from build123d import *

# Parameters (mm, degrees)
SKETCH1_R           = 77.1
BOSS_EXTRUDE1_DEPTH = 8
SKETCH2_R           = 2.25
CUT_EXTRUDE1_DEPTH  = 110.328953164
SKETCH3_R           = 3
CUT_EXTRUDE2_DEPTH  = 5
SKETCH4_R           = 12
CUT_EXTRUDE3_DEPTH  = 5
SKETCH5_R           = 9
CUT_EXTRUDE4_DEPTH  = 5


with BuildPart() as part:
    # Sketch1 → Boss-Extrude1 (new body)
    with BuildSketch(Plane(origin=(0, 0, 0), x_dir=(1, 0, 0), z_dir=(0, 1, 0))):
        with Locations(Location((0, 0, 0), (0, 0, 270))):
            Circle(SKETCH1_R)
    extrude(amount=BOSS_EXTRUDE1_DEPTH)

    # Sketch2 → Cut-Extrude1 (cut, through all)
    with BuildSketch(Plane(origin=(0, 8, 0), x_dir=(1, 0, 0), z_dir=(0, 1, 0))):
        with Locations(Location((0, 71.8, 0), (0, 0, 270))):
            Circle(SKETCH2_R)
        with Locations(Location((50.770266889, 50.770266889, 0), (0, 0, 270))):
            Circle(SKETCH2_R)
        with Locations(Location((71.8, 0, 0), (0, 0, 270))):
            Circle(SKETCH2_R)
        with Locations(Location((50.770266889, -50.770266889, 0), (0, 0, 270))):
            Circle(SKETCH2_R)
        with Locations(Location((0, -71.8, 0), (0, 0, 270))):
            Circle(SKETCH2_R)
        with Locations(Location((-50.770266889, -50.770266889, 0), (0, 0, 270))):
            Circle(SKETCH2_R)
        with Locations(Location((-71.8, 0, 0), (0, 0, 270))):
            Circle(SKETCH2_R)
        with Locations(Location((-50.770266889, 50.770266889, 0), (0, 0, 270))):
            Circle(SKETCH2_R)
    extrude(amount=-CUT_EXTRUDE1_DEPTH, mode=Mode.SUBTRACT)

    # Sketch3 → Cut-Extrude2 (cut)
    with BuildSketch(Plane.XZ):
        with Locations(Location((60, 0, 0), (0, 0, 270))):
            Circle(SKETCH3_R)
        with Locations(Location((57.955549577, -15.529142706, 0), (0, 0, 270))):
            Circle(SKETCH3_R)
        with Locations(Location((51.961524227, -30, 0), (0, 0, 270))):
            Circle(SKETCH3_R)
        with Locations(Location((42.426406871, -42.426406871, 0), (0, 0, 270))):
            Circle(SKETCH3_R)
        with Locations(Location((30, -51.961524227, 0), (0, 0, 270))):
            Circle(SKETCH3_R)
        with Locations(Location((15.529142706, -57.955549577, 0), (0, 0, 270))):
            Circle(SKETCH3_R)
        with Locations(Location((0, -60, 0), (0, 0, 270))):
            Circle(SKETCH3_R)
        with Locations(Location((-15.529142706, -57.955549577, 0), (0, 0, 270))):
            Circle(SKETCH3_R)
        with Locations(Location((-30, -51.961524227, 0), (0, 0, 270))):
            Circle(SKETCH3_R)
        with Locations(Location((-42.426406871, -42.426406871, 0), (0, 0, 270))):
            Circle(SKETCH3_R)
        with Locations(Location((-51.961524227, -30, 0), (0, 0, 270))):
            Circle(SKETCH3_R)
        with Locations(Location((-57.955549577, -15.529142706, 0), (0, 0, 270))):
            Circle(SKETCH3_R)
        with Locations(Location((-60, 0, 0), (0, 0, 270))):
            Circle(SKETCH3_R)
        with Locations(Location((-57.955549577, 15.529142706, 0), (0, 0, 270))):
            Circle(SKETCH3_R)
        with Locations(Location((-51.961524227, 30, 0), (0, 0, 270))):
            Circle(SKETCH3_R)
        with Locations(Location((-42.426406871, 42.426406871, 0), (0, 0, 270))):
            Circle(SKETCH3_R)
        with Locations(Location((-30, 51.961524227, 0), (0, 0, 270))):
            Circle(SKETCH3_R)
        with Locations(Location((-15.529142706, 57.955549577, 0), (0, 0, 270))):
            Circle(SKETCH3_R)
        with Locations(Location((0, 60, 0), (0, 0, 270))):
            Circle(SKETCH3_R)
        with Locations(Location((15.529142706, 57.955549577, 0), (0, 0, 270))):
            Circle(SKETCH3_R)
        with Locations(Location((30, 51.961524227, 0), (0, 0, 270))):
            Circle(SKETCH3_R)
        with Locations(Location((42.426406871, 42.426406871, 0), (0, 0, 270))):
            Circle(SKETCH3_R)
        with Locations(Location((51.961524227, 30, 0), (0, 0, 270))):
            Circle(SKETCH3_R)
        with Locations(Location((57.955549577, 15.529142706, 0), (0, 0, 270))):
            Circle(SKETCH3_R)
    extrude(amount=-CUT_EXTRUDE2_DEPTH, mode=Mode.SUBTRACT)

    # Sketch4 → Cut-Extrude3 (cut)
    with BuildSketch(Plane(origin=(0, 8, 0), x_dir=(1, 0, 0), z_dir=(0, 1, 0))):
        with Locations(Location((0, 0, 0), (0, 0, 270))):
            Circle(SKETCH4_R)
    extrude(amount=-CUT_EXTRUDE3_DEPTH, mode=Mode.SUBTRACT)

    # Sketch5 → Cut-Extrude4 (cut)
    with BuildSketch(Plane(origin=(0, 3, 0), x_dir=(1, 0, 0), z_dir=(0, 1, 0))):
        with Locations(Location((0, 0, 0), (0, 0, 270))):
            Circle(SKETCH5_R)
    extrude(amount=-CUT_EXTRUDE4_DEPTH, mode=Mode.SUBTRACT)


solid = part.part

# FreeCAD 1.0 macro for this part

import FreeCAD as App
import Part
import Sketcher
Q = App.Units.Quantity

doc = App.newDocument("Part")
body = doc.addObject("PartDesign::Body", "Body")

sketch1 = body.newObject("Sketcher::SketchObject", "Sketch")
sketch1.AttachmentSupport = (doc.getObject("XZ_Plane"), [""])
sketch1.MapMode = "FlatFace"
sketch1.addGeometry(Part.Circle(App.Vector(0, 0, 0), App.Vector(0, 0, 1), 77), False)
sketch1.addConstraint([
    Sketcher.Constraint("Coincident", 0, 3, -1, 1),
    Sketcher.Constraint("Diameter", 0, Q("154.2 mm")),
])
pad1 = body.newObject("PartDesign::Pad", "Pad")
pad1.Profile = sketch1
pad1.Length = 8
pad1.Reversed = True

sketch2 = body.newObject("Sketcher::SketchObject", "Sketch001")
sketch2.AttachmentSupport = (doc.getObject("XZ_Plane"), [""])
sketch2.MapMode = "FlatFace"
sketch2.AttachmentOffset = App.Placement(App.Vector(0, 0, -8), App.Rotation())
sketch2.addGeometry([
    Part.Circle(App.Vector(0, -71.8, 0), App.Vector(0, 0, 1), 2.2),
    Part.Circle(App.Vector(50.8, -50.8, 0), App.Vector(0, 0, 1), 2.2),
    Part.Circle(App.Vector(71.8, 0, 0), App.Vector(0, 0, 1), 2.2),
    Part.Circle(App.Vector(50.8, 50.8, 0), App.Vector(0, 0, 1), 2.2),
    Part.Circle(App.Vector(0, 71.8, 0), App.Vector(0, 0, 1), 2.2),
    Part.Circle(App.Vector(-50.8, 50.8, 0), App.Vector(0, 0, 1), 2.2),
    Part.Circle(App.Vector(-71.8, 0, 0), App.Vector(0, 0, 1), 2.2),
    Part.Circle(App.Vector(-50.8, -50.8, 0), App.Vector(0, 0, 1), 2.2),
], False)
sketch2.addConstraint([
    Sketcher.Constraint("Equal", 0, 1),
    Sketcher.Constraint("Equal", 1, 2),
    Sketcher.Constraint("Equal", 2, 3),
    Sketcher.Constraint("Equal", 3, 4),
    Sketcher.Constraint("Equal", 4, 5),
    Sketcher.Constraint("Equal", 5, 6),
    Sketcher.Constraint("Equal", 6, 7),
    Sketcher.Constraint("Symmetric", 0, 3, 4, 3, -1, 1),
    Sketcher.Constraint("Symmetric", 1, 3, 5, 3, -1, 1),
    Sketcher.Constraint("Symmetric", 2, 3, 6, 3, -1, 1),
    Sketcher.Constraint("Symmetric", 3, 3, 7, 3, -1, 1),
    Sketcher.Constraint("Symmetric", 3, 3, 5, 3, -2),
    Sketcher.Constraint("PointOnObject", 0, 3, -2),
    Sketcher.Constraint("PointOnObject", 2, 3, -1),
    Sketcher.Constraint("Diameter", 0, Q("4.5 mm")),
    Sketcher.Constraint("DistanceY", 0, 3, -1, 1, Q("71.8 mm")),
    Sketcher.Constraint("DistanceX", -1, 1, 2, 3, Q("71.8 mm")),
    Sketcher.Constraint("DistanceX", -1, 1, 1, 3, Q("50.770267 mm")),
    Sketcher.Constraint("DistanceY", 1, 3, -1, 1, Q("50.770267 mm")),
])
pocket1 = body.newObject("PartDesign::Pocket", "Pocket")
pocket1.Profile = sketch2
pocket1.Type = "ThroughAll"
pocket1.Reversed = True

sketch3 = body.newObject("Sketcher::SketchObject", "Sketch002")
sketch3.AttachmentSupport = (doc.getObject("XZ_Plane"), [""])
sketch3.MapMode = "FlatFace"
sketch3.addGeometry([
    Part.Circle(App.Vector(60, 0, 0), App.Vector(0, 0, 1), 3),
    Part.Circle(App.Vector(58, -15.5, 0), App.Vector(0, 0, 1), 3),
    Part.Circle(App.Vector(52, -30, 0), App.Vector(0, 0, 1), 3),
    Part.Circle(App.Vector(42.4, -42.4, 0), App.Vector(0, 0, 1), 3),
    Part.Circle(App.Vector(30, -52, 0), App.Vector(0, 0, 1), 3),
    Part.Circle(App.Vector(15.5, -58, 0), App.Vector(0, 0, 1), 3),
    Part.Circle(App.Vector(0, -60, 0), App.Vector(0, 0, 1), 3),
    Part.Circle(App.Vector(-15.5, -58, 0), App.Vector(0, 0, 1), 3),
    Part.Circle(App.Vector(-30, -52, 0), App.Vector(0, 0, 1), 3),
    Part.Circle(App.Vector(-42.4, -42.4, 0), App.Vector(0, 0, 1), 3),
    Part.Circle(App.Vector(-52, -30, 0), App.Vector(0, 0, 1), 3),
    Part.Circle(App.Vector(-58, -15.5, 0), App.Vector(0, 0, 1), 3),
    Part.Circle(App.Vector(-60, 0, 0), App.Vector(0, 0, 1), 3),
    Part.Circle(App.Vector(-58, 15.5, 0), App.Vector(0, 0, 1), 3),
    Part.Circle(App.Vector(-52, 30, 0), App.Vector(0, 0, 1), 3),
    Part.Circle(App.Vector(-42.4, 42.4, 0), App.Vector(0, 0, 1), 3),
    Part.Circle(App.Vector(-30, 52, 0), App.Vector(0, 0, 1), 3),
    Part.Circle(App.Vector(-15.5, 58, 0), App.Vector(0, 0, 1), 3),
    Part.Circle(App.Vector(0, 60, 0), App.Vector(0, 0, 1), 3),
    Part.Circle(App.Vector(15.5, 58, 0), App.Vector(0, 0, 1), 3),
    Part.Circle(App.Vector(30, 52, 0), App.Vector(0, 0, 1), 3),
    Part.Circle(App.Vector(42.4, 42.4, 0), App.Vector(0, 0, 1), 3),
    Part.Circle(App.Vector(52, 30, 0), App.Vector(0, 0, 1), 3),
    Part.Circle(App.Vector(58, 15.5, 0), App.Vector(0, 0, 1), 3),
], False)
sketch3.addConstraint([
    Sketcher.Constraint("Equal", 0, 1),
    Sketcher.Constraint("Equal", 1, 2),
    Sketcher.Constraint("Equal", 2, 3),
    Sketcher.Constraint("Equal", 3, 4),
    Sketcher.Constraint("Equal", 4, 5),
    Sketcher.Constraint("Equal", 5, 6),
    Sketcher.Constraint("Equal", 6, 7),
    Sketcher.Constraint("Equal", 7, 8),
    Sketcher.Constraint("Equal", 8, 9),
    Sketcher.Constraint("Equal", 9, 10),
    Sketcher.Constraint("Equal", 10, 11),
    Sketcher.Constraint("Equal", 11, 12),
    Sketcher.Constraint("Equal", 12, 13),
    Sketcher.Constraint("Equal", 13, 14),
    Sketcher.Constraint("Equal", 14, 15),
    Sketcher.Constraint("Equal", 15, 16),
    Sketcher.Constraint("Equal", 16, 17),
    Sketcher.Constraint("Equal", 17, 18),
    Sketcher.Constraint("Equal", 18, 19),
    Sketcher.Constraint("Equal", 19, 20),
    Sketcher.Constraint("Equal", 20, 21),
    Sketcher.Constraint("Equal", 21, 22),
    Sketcher.Constraint("Equal", 22, 23),
    Sketcher.Constraint("Symmetric", 0, 3, 12, 3, -1, 1),
    Sketcher.Constraint("Symmetric", 1, 3, 13, 3, -1, 1),
    Sketcher.Constraint("Symmetric", 2, 3, 14, 3, -1, 1),
    Sketcher.Constraint("Symmetric", 3, 3, 15, 3, -1, 1),
    Sketcher.Constraint("Symmetric", 4, 3, 16, 3, -1, 1),
    Sketcher.Constraint("Symmetric", 5, 3, 17, 3, -1, 1),
    Sketcher.Constraint("Symmetric", 6, 3, 18, 3, -1, 1),
    Sketcher.Constraint("Symmetric", 7, 3, 19, 3, -1, 1),
    Sketcher.Constraint("Symmetric", 8, 3, 20, 3, -1, 1),
    Sketcher.Constraint("Symmetric", 9, 3, 21, 3, -1, 1),
    Sketcher.Constraint("Symmetric", 10, 3, 22, 3, -1, 1),
    Sketcher.Constraint("Symmetric", 11, 3, 23, 3, -1, 1),
    Sketcher.Constraint("Symmetric", 5, 3, 7, 3, -2),
    Sketcher.Constraint("Symmetric", 4, 3, 8, 3, -2),
    Sketcher.Constraint("Symmetric", 3, 3, 9, 3, -2),
    Sketcher.Constraint("Symmetric", 2, 3, 10, 3, -2),
    Sketcher.Constraint("Symmetric", 1, 3, 11, 3, -2),
    Sketcher.Constraint("PointOnObject", 0, 3, -1),
    Sketcher.Constraint("PointOnObject", 6, 3, -2),
    Sketcher.Constraint("Diameter", 0, Q("6 mm")),
    Sketcher.Constraint("DistanceX", -1, 1, 0, 3, Q("60 mm")),
    Sketcher.Constraint("DistanceY", 2, 3, -1, 1, Q("30 mm")),
    Sketcher.Constraint("DistanceX", -1, 1, 4, 3, Q("30 mm")),
    Sketcher.Constraint("DistanceY", 6, 3, -1, 1, Q("60 mm")),
    Sketcher.Constraint("DistanceX", -1, 1, 1, 3, Q("57.95555 mm")),
    Sketcher.Constraint("DistanceY", 5, 3, -1, 1, Q("57.95555 mm")),
    Sketcher.Constraint("DistanceY", 4, 3, 1, 3, Q("36.432382 mm")),
    Sketcher.Constraint("DistanceX", 5, 3, 2, 3, Q("36.432382 mm")),
    Sketcher.Constraint("DistanceX", 7, 3, 3, 3, Q("57.95555 mm")),
    Sketcher.Constraint("DistanceY", 9, 3, 13, 3, Q("57.95555 mm")),
    Sketcher.Constraint("DistanceY", 1, 3, -1, 1, Q("15.529143 mm")),
    Sketcher.Constraint("DistanceX", -1, 1, 2, 3, Q("51.961524 mm")),
])
pocket2 = body.newObject("PartDesign::Pocket", "Pocket001")
pocket2.Profile = sketch3
pocket2.Length = 5

sketch4 = body.newObject("Sketcher::SketchObject", "Sketch003")
sketch4.AttachmentSupport = (doc.getObject("XZ_Plane"), [""])
sketch4.MapMode = "FlatFace"
sketch4.AttachmentOffset = App.Placement(App.Vector(0, 0, -8), App.Rotation())
sketch4.addGeometry(Part.Circle(App.Vector(0, 0, 0), App.Vector(0, 0, 1), 12), False)
sketch4.addConstraint([
    Sketcher.Constraint("Coincident", 0, 3, -1, 1),
    Sketcher.Constraint("Diameter", 0, Q("24 mm")),
])
pocket3 = body.newObject("PartDesign::Pocket", "Pocket002")
pocket3.Profile = sketch4
pocket3.Length = 5
pocket3.Reversed = True

sketch5 = body.newObject("Sketcher::SketchObject", "Sketch004")
sketch5.AttachmentSupport = (doc.getObject("XZ_Plane"), [""])
sketch5.MapMode = "FlatFace"
sketch5.AttachmentOffset = App.Placement(App.Vector(0, 0, -3), App.Rotation())
sketch5.addGeometry(Part.Circle(App.Vector(0, 0, 0), App.Vector(0, 0, 1), 9), False)
sketch5.addConstraint([
    Sketcher.Constraint("Coincident", 0, 3, -1, 1),
    Sketcher.Constraint("Diameter", 0, Q("18 mm")),
])
pocket4 = body.newObject("PartDesign::Pocket", "Pocket003")
pocket4.Profile = sketch5
pocket4.Length = 5
pocket4.Reversed = True

doc.recompute()
